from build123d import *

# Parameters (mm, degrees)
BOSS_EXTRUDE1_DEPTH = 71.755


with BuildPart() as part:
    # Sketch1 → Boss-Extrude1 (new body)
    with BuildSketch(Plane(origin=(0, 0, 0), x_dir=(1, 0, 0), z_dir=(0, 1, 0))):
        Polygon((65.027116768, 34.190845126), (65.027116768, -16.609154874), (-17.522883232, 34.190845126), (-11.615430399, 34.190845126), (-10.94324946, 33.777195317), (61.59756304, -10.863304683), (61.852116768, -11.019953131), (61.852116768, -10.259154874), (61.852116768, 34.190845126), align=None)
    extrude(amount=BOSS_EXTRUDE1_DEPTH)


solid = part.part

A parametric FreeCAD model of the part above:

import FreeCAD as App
import Part
import Sketcher

V = App.Vector
Q = App.Units.Quantity

doc = App.newDocument("Part")
body = doc.addObject("PartDesign::Body", "Body")

# Sketch on XZ plane
sketch1 = body.newObject("Sketcher::SketchObject", "Sketch")
sketch1.AttachmentSupport = (doc.getObject("XZ_Plane"), [""])
sketch1.MapMode = "FlatFace"
sketch1.addGeometry([
    Part.LineSegment(V(65.027117, 16.609155, 0), V(65.027117, -34.190845, 0)),  # 0
    Part.LineSegment(V(65.027117, -34.190845, 0), V(61.852117, -34.190845, 0)),  # 1
    Part.LineSegment(V(61.852117, -34.190845, 0), V(61.852117, 11.019953, 0)),  # 2
    Part.LineSegment(V(61.852117, 11.019953, 0), V(-10.943249, -33.777195, 0)),  # 3
    Part.LineSegment(V(-10.943249, -33.777195, 0), V(-11.61543, -34.190845, 0)),  # 4
    Part.LineSegment(V(-11.61543, -34.190845, 0), V(-17.522883, -34.190845, 0)),  # 5
    Part.LineSegment(V(-17.522883, -34.190845, 0), V(65.027117, 16.609155, 0)),  # 6
], False)
sketch1.addConstraint([
    Sketcher.Constraint("Coincident", 0, 2, 1, 1),
    Sketcher.Constraint("Coincident", 1, 2, 2, 1),
    Sketcher.Constraint("Coincident", 2, 2, 3, 1),
    Sketcher.Constraint("Coincident", 3, 2, 4, 1),
    Sketcher.Constraint("Coincident", 4, 2, 5, 1),
    Sketcher.Constraint("Coincident", 5, 2, 6, 1),
    Sketcher.Constraint("Coincident", 6, 2, 0, 1),
    Sketcher.Constraint("Vertical", 0),
    Sketcher.Constraint("Horizontal", 1),
    Sketcher.Constraint("Vertical", 2),
    Sketcher.Constraint("Horizontal", 5),
    Sketcher.Constraint("Parallel", 3, 4),
    Sketcher.Constraint("Parallel", 4, 6),
    Sketcher.Constraint("Horizontal", 1, 2, 4, 2),
    Sketcher.Constraint("DistanceY", 0, 2, 0, 1, Q("2 in")),
    Sketcher.Constraint("DistanceX", 1, 2, 1, 1, Q("0.125 in")),
    Sketcher.Constraint("DistanceX", 5, 2, 0, 2, Q("3.25 in")),
    Sketcher.Constraint("DistanceY", 2, 1, 2, 2, Q("45.210798 mm")),
    Sketcher.Constraint("Distance", 3, Q("85.474849 mm")),
    Sketcher.Constraint("DistanceX", 3, 2, -1, 1, Q("10.943249 mm")),
    Sketcher.Constraint("DistanceY", 0, 2, -1, 1, Q("34.190845 mm")),
])
pad1 = body.newObject("PartDesign::Pad", "Pad")
pad1.Profile = sketch1
pad1.Length = Q("2.825 in")
pad1.Reversed = True

doc.recompute()
